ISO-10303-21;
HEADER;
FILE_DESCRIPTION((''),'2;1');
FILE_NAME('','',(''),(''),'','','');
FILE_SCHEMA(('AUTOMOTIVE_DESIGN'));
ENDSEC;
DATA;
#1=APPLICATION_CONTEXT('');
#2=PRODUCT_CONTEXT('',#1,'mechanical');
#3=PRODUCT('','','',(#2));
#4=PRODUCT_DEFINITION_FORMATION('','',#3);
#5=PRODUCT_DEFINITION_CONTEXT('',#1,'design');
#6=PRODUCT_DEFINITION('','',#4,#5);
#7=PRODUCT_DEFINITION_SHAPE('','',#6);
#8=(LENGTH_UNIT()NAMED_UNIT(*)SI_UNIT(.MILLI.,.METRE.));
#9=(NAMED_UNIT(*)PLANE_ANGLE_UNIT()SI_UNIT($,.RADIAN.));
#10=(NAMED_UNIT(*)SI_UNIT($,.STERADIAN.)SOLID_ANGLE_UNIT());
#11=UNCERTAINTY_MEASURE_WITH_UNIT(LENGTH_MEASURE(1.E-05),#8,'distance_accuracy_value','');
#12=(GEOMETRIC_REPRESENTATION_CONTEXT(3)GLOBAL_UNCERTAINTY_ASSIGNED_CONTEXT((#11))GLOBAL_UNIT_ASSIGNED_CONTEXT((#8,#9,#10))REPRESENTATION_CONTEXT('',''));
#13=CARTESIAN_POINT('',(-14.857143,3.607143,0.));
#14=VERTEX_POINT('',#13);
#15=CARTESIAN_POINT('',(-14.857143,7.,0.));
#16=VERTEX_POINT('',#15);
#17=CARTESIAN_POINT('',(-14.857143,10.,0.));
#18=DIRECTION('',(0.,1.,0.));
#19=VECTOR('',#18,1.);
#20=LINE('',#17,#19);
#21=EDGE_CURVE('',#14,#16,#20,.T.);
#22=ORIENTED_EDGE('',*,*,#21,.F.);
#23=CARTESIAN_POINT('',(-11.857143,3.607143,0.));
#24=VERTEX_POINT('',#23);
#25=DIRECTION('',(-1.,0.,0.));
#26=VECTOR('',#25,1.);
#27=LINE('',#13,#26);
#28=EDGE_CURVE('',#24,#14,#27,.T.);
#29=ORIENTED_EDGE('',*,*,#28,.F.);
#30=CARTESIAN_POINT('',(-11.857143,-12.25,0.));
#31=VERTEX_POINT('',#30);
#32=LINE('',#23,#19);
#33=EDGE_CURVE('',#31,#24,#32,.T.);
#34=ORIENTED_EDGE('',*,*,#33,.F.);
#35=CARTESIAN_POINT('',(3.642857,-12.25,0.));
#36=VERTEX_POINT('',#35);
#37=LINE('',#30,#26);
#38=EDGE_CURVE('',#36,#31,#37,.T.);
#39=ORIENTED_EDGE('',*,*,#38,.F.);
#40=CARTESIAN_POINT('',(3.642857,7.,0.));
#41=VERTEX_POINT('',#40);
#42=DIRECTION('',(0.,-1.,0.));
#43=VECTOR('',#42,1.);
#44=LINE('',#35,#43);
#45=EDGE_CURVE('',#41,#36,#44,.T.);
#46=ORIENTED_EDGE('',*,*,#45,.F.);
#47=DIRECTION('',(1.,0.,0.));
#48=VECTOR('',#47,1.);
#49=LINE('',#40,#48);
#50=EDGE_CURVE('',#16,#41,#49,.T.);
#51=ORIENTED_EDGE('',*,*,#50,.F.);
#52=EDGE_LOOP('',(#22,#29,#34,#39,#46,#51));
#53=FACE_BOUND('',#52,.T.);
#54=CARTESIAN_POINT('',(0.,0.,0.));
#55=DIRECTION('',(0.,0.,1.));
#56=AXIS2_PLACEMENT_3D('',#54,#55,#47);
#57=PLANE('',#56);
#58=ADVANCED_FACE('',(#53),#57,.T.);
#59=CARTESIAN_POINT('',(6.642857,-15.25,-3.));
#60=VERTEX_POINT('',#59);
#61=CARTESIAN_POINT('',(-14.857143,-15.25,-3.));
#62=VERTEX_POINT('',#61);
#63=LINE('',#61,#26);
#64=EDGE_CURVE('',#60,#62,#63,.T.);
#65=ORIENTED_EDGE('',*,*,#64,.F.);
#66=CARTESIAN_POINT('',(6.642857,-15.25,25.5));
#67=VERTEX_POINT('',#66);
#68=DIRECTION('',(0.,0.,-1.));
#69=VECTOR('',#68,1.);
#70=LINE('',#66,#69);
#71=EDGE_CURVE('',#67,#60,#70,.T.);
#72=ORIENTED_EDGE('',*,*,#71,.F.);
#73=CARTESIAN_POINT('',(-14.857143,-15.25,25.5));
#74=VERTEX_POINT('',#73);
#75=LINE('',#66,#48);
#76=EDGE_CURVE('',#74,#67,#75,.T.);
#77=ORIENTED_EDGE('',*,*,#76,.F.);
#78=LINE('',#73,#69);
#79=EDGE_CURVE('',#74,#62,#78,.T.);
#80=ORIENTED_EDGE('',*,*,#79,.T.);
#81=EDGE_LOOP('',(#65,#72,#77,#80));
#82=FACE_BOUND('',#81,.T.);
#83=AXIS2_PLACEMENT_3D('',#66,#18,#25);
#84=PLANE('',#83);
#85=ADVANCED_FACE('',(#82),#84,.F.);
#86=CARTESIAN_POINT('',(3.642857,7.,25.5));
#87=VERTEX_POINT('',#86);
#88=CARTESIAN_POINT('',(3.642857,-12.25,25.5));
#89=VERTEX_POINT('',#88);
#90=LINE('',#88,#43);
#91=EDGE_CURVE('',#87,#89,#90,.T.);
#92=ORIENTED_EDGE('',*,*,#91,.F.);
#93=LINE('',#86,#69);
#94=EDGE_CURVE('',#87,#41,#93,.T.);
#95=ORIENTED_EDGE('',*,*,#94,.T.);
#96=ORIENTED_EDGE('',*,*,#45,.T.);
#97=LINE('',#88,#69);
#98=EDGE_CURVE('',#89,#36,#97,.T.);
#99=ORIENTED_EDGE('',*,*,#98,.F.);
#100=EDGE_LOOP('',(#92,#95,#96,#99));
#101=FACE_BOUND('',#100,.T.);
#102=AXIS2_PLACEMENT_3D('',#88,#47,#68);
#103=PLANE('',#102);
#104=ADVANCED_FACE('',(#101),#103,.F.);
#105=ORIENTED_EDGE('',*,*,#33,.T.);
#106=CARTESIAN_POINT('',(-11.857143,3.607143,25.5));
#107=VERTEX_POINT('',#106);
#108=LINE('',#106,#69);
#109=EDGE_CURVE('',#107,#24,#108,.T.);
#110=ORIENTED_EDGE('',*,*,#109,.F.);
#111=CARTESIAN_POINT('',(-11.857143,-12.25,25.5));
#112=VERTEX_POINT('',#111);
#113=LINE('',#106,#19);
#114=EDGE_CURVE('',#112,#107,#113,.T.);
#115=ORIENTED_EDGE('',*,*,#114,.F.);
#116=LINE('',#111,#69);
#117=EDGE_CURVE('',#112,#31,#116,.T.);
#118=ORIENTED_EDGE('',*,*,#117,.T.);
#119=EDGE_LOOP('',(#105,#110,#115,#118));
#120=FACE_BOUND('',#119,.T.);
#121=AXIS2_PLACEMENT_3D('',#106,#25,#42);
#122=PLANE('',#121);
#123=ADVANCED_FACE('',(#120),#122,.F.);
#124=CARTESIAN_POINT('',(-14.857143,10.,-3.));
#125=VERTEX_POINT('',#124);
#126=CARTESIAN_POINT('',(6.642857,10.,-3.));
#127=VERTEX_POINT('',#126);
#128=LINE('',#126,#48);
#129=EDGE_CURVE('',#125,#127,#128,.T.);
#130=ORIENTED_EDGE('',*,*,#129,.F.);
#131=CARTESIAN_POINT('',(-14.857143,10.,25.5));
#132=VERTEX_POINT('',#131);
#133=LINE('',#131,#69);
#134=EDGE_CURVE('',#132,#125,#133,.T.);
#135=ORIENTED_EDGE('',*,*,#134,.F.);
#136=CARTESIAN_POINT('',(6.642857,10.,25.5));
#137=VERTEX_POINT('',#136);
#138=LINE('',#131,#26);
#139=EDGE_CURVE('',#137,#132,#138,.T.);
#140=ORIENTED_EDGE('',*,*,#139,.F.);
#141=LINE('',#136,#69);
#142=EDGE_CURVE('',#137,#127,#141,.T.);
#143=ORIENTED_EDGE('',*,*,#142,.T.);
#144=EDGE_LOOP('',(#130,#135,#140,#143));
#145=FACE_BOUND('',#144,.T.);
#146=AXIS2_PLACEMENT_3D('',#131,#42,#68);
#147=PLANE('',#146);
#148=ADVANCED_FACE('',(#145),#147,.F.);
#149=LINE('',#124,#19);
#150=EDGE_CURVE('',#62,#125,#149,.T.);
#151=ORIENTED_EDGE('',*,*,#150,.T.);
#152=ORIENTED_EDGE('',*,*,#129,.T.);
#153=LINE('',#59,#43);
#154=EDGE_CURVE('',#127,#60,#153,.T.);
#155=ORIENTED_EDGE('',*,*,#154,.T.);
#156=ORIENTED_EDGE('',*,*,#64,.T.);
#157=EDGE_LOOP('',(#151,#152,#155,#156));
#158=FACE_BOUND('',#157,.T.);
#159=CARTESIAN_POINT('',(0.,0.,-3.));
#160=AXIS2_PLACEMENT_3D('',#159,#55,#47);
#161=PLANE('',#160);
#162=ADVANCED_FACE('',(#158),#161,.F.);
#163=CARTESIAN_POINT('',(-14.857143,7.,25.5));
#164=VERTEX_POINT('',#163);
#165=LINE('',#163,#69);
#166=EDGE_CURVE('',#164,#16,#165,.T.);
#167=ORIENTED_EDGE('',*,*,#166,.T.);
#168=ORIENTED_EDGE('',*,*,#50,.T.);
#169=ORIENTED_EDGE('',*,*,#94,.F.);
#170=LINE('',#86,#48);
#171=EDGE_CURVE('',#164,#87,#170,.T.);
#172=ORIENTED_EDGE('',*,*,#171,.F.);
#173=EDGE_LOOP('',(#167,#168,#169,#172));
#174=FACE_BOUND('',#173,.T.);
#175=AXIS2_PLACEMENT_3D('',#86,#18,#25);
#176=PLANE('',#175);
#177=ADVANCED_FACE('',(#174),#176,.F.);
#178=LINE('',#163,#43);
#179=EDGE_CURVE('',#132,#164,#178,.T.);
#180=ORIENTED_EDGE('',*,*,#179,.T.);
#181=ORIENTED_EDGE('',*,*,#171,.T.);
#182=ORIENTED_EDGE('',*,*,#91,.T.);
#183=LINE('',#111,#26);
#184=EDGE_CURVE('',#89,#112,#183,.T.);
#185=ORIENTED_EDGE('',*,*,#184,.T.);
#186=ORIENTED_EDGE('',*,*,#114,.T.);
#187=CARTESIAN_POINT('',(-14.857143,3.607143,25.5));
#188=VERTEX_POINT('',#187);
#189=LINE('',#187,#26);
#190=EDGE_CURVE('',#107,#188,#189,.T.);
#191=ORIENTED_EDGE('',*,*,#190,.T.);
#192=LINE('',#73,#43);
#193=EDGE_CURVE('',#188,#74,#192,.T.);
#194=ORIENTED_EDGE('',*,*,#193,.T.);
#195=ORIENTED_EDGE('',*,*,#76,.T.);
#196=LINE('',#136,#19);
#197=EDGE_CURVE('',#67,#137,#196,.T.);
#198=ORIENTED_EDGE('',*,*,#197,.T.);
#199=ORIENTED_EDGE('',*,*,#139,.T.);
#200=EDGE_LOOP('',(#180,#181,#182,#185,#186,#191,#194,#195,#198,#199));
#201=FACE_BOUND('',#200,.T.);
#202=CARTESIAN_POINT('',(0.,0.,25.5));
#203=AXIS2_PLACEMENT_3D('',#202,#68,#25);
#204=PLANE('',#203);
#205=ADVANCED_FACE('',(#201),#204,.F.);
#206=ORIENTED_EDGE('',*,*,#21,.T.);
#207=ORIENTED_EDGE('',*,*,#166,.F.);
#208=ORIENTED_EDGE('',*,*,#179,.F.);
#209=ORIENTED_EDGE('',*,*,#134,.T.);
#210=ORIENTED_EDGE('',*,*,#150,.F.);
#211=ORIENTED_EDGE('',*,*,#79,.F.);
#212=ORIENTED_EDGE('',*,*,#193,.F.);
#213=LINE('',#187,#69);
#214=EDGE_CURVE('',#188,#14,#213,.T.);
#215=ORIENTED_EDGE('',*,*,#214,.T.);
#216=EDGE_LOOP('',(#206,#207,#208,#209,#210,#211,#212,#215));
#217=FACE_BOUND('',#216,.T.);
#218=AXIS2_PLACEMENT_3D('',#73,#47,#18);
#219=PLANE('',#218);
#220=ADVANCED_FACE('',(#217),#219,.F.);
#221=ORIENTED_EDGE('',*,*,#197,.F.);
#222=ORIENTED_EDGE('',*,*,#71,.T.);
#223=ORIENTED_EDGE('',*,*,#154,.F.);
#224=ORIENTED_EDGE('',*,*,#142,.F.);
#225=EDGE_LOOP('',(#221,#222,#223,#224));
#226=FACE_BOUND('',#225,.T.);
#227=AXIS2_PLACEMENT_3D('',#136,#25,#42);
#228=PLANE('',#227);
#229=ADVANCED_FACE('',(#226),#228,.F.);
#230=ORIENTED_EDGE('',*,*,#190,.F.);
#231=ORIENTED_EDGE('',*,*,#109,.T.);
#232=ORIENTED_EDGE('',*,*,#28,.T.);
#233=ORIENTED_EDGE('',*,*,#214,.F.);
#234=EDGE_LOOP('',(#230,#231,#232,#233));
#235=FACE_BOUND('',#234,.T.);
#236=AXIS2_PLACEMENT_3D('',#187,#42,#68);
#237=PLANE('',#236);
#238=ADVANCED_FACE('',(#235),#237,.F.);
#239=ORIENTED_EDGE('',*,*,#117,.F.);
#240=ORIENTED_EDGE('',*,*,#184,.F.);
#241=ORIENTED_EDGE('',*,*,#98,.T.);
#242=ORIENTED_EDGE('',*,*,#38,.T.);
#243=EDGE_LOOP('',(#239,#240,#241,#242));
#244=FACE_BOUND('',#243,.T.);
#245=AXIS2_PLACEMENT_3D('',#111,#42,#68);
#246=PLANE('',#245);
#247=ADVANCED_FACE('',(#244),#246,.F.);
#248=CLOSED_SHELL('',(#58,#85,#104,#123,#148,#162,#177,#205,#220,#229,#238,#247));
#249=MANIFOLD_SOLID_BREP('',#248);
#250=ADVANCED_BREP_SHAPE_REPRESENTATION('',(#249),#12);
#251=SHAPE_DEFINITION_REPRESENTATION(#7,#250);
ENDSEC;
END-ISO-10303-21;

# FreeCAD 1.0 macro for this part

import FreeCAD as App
import Part
import Sketcher
from FreeCAD import Vector

doc = App.newDocument("Part")
body = doc.addObject("PartDesign::Body", "Body")

sketch1 = body.newObject("Sketcher::SketchObject", "Sketch")
sketch1.AttachmentSupport = (doc.getObject("XY_Plane"), [""])
sketch1.MapMode = "FlatFace"
sketch1.addGeometry(Part.LineSegment(Vector(6.6, 10, 0), Vector(-14.9, 10, 0)), False)
sketch1.addGeometry(Part.LineSegment(Vector(-14.9, 10, 0), Vector(-14.9, 7, 0)), False)
sketch1.addGeometry(Part.LineSegment(Vector(-14.9, 7, 0), Vector(3.6, 7, 0)), False)
sketch1.addGeometry(Part.LineSegment(Vector(3.6, 7, 0), Vector(3.6, -12.2, 0)), False)
sketch1.addGeometry(Part.LineSegment(Vector(3.6, -12.2, 0), Vector(-11.9, -12.2, 0)), False)
sketch1.addGeometry(Part.LineSegment(Vector(-11.9, -12.2, 0), Vector(-11.9, 3.6, 0)), False)
sketch1.addGeometry(Part.LineSegment(Vector(-11.9, 3.6, 0), Vector(-14.9, 3.6, 0)), False)
sketch1.addGeometry(Part.LineSegment(Vector(-14.9, 3.6, 0), Vector(-14.9, -15.2, 0)), False)
sketch1.addGeometry(Part.LineSegment(Vector(-14.9, -15.2, 0), Vector(6.6, -15.2, 0)), False)
sketch1.addGeometry(Part.LineSegment(Vector(6.6, -15.2, 0), Vector(6.6, 10, 0)), False)
sketch1.addConstraint(Sketcher.Constraint("Coincident", 0, 2, 1, 1))
sketch1.addConstraint(Sketcher.Constraint("Coincident", 1, 2, 2, 1))
sketch1.addConstraint(Sketcher.Constraint("Coincident", 2, 2, 3, 1))
sketch1.addConstraint(Sketcher.Constraint("Coincident", 3, 2, 4, 1))
sketch1.addConstraint(Sketcher.Constraint("Coincident", 4, 2, 5, 1))
sketch1.addConstraint(Sketcher.Constraint("Coincident", 5, 2, 6, 1))
sketch1.addConstraint(Sketcher.Constraint("Coincident", 6, 2, 7, 1))
sketch1.addConstraint(Sketcher.Constraint("Coincident", 7, 2, 8, 1))
sketch1.addConstraint(Sketcher.Constraint("Coincident", 8, 2, 9, 1))
sketch1.addConstraint(Sketcher.Constraint("Coincident", 9, 2, 0, 1))
sketch1.addConstraint(Sketcher.Constraint("Horizontal", 0))
sketch1.addConstraint(Sketcher.Constraint("Vertical", 1))
sketch1.addConstraint(Sketcher.Constraint("Horizontal", 2))
sketch1.addConstraint(Sketcher.Constraint("Vertical", 3))
sketch1.addConstraint(Sketcher.Constraint("Horizontal", 4))
sketch1.addConstraint(Sketcher.Constraint("Vertical", 5))
sketch1.addConstraint(Sketcher.Constraint("Horizontal", 6))
sketch1.addConstraint(Sketcher.Constraint("Vertical", 7))
sketch1.addConstraint(Sketcher.Constraint("Horizontal", 8))
sketch1.addConstraint(Sketcher.Constraint("Vertical", 9))
sketch1.addConstraint(Sketcher.Constraint("Vertical", 1, 2, 6, 2))
sketch1.addConstraint(Sketcher.Constraint("Equal", 6, 1))
sketch1.addConstraint(Sketcher.Constraint("DistanceX", 6, 2, 6, 1, 3.0))
sketch1.addConstraint(Sketcher.Constraint("DistanceX", 0, 2, 0, 1, 21.5))
sketch1.addConstraint(Sketcher.Constraint("DistanceX", 2, 1, 2, 2, 18.5))
sketch1.addConstraint(Sketcher.Constraint("DistanceY", -1, 1, 0, 2, 10.0))
sketch1.addConstraint(Sketcher.Constraint("DistanceY", 7, 2, 4, 2, 3.0))
sketch1.addConstraint(Sketcher.Constraint("DistanceY", 3, 2, 3, 1, 19.25))
sketch1.addConstraint(Sketcher.Constraint("DistanceY", 5, 1, 5, 2, 15.857143))
sketch1.addConstraint(Sketcher.Constraint("DistanceX", 0, 2, -1, 1, 14.857143))
pad1 = body.newObject("PartDesign::Pad", "Pad")
pad1.Profile = sketch1
pad1.Length = 25.5

sketch2 = body.newObject("Sketcher::SketchObject", "Sketch001")
sketch2.AttachmentSupport = (doc.getObject("XY_Plane"), [""])
sketch2.MapMode = "FlatFace"
sketch2.addGeometry(Part.LineSegment(Vector(7, 10, 0), Vector(7, -15, 0)), False)
sketch2.addGeometry(Part.LineSegment(Vector(7, -15, 0), Vector(-15, -15, 0)), False)
sketch2.addGeometry(Part.LineSegment(Vector(-15, -15, 0), Vector(-15, 10, 0)), False)
sketch2.addGeometry(Part.LineSegment(Vector(-15, 10, 0), Vector(7, 10, 0)), False)
sketch2.addConstraint(Sketcher.Constraint("Coincident", 0, 2, 1, 1))
sketch2.addConstraint(Sketcher.Constraint("Coincident", 1, 2, 2, 1))
sketch2.addConstraint(Sketcher.Constraint("Coincident", 2, 2, 3, 1))
sketch2.addConstraint(Sketcher.Constraint("Coincident", 3, 2, 0, 1))
sketch2.addConstraint(Sketcher.Constraint("Vertical", 0))
sketch2.addConstraint(Sketcher.Constraint("Horizontal", 1))
sketch2.addConstraint(Sketcher.Constraint("Vertical", 2))
sketch2.addConstraint(Sketcher.Constraint("Horizontal", 3))
sketch2.addConstraint(Sketcher.Constraint("DistanceX", 1, 2, 1, 1, 21.5))
sketch2.addConstraint(Sketcher.Constraint("DistanceY", -1, 1, 2, 2, 10.0))
sketch2.addConstraint(Sketcher.Constraint("DistanceY", 0, 2, 0, 1, 25.25))
sketch2.addConstraint(Sketcher.Constraint("DistanceX", -1, 1, 0, 2, 6.642857))
pad2 = body.newObject("PartDesign::Pad", "Pad001")
pad2.Profile = sketch2
pad2.Length = 3
pad2.Reversed = True

doc.recompute()
